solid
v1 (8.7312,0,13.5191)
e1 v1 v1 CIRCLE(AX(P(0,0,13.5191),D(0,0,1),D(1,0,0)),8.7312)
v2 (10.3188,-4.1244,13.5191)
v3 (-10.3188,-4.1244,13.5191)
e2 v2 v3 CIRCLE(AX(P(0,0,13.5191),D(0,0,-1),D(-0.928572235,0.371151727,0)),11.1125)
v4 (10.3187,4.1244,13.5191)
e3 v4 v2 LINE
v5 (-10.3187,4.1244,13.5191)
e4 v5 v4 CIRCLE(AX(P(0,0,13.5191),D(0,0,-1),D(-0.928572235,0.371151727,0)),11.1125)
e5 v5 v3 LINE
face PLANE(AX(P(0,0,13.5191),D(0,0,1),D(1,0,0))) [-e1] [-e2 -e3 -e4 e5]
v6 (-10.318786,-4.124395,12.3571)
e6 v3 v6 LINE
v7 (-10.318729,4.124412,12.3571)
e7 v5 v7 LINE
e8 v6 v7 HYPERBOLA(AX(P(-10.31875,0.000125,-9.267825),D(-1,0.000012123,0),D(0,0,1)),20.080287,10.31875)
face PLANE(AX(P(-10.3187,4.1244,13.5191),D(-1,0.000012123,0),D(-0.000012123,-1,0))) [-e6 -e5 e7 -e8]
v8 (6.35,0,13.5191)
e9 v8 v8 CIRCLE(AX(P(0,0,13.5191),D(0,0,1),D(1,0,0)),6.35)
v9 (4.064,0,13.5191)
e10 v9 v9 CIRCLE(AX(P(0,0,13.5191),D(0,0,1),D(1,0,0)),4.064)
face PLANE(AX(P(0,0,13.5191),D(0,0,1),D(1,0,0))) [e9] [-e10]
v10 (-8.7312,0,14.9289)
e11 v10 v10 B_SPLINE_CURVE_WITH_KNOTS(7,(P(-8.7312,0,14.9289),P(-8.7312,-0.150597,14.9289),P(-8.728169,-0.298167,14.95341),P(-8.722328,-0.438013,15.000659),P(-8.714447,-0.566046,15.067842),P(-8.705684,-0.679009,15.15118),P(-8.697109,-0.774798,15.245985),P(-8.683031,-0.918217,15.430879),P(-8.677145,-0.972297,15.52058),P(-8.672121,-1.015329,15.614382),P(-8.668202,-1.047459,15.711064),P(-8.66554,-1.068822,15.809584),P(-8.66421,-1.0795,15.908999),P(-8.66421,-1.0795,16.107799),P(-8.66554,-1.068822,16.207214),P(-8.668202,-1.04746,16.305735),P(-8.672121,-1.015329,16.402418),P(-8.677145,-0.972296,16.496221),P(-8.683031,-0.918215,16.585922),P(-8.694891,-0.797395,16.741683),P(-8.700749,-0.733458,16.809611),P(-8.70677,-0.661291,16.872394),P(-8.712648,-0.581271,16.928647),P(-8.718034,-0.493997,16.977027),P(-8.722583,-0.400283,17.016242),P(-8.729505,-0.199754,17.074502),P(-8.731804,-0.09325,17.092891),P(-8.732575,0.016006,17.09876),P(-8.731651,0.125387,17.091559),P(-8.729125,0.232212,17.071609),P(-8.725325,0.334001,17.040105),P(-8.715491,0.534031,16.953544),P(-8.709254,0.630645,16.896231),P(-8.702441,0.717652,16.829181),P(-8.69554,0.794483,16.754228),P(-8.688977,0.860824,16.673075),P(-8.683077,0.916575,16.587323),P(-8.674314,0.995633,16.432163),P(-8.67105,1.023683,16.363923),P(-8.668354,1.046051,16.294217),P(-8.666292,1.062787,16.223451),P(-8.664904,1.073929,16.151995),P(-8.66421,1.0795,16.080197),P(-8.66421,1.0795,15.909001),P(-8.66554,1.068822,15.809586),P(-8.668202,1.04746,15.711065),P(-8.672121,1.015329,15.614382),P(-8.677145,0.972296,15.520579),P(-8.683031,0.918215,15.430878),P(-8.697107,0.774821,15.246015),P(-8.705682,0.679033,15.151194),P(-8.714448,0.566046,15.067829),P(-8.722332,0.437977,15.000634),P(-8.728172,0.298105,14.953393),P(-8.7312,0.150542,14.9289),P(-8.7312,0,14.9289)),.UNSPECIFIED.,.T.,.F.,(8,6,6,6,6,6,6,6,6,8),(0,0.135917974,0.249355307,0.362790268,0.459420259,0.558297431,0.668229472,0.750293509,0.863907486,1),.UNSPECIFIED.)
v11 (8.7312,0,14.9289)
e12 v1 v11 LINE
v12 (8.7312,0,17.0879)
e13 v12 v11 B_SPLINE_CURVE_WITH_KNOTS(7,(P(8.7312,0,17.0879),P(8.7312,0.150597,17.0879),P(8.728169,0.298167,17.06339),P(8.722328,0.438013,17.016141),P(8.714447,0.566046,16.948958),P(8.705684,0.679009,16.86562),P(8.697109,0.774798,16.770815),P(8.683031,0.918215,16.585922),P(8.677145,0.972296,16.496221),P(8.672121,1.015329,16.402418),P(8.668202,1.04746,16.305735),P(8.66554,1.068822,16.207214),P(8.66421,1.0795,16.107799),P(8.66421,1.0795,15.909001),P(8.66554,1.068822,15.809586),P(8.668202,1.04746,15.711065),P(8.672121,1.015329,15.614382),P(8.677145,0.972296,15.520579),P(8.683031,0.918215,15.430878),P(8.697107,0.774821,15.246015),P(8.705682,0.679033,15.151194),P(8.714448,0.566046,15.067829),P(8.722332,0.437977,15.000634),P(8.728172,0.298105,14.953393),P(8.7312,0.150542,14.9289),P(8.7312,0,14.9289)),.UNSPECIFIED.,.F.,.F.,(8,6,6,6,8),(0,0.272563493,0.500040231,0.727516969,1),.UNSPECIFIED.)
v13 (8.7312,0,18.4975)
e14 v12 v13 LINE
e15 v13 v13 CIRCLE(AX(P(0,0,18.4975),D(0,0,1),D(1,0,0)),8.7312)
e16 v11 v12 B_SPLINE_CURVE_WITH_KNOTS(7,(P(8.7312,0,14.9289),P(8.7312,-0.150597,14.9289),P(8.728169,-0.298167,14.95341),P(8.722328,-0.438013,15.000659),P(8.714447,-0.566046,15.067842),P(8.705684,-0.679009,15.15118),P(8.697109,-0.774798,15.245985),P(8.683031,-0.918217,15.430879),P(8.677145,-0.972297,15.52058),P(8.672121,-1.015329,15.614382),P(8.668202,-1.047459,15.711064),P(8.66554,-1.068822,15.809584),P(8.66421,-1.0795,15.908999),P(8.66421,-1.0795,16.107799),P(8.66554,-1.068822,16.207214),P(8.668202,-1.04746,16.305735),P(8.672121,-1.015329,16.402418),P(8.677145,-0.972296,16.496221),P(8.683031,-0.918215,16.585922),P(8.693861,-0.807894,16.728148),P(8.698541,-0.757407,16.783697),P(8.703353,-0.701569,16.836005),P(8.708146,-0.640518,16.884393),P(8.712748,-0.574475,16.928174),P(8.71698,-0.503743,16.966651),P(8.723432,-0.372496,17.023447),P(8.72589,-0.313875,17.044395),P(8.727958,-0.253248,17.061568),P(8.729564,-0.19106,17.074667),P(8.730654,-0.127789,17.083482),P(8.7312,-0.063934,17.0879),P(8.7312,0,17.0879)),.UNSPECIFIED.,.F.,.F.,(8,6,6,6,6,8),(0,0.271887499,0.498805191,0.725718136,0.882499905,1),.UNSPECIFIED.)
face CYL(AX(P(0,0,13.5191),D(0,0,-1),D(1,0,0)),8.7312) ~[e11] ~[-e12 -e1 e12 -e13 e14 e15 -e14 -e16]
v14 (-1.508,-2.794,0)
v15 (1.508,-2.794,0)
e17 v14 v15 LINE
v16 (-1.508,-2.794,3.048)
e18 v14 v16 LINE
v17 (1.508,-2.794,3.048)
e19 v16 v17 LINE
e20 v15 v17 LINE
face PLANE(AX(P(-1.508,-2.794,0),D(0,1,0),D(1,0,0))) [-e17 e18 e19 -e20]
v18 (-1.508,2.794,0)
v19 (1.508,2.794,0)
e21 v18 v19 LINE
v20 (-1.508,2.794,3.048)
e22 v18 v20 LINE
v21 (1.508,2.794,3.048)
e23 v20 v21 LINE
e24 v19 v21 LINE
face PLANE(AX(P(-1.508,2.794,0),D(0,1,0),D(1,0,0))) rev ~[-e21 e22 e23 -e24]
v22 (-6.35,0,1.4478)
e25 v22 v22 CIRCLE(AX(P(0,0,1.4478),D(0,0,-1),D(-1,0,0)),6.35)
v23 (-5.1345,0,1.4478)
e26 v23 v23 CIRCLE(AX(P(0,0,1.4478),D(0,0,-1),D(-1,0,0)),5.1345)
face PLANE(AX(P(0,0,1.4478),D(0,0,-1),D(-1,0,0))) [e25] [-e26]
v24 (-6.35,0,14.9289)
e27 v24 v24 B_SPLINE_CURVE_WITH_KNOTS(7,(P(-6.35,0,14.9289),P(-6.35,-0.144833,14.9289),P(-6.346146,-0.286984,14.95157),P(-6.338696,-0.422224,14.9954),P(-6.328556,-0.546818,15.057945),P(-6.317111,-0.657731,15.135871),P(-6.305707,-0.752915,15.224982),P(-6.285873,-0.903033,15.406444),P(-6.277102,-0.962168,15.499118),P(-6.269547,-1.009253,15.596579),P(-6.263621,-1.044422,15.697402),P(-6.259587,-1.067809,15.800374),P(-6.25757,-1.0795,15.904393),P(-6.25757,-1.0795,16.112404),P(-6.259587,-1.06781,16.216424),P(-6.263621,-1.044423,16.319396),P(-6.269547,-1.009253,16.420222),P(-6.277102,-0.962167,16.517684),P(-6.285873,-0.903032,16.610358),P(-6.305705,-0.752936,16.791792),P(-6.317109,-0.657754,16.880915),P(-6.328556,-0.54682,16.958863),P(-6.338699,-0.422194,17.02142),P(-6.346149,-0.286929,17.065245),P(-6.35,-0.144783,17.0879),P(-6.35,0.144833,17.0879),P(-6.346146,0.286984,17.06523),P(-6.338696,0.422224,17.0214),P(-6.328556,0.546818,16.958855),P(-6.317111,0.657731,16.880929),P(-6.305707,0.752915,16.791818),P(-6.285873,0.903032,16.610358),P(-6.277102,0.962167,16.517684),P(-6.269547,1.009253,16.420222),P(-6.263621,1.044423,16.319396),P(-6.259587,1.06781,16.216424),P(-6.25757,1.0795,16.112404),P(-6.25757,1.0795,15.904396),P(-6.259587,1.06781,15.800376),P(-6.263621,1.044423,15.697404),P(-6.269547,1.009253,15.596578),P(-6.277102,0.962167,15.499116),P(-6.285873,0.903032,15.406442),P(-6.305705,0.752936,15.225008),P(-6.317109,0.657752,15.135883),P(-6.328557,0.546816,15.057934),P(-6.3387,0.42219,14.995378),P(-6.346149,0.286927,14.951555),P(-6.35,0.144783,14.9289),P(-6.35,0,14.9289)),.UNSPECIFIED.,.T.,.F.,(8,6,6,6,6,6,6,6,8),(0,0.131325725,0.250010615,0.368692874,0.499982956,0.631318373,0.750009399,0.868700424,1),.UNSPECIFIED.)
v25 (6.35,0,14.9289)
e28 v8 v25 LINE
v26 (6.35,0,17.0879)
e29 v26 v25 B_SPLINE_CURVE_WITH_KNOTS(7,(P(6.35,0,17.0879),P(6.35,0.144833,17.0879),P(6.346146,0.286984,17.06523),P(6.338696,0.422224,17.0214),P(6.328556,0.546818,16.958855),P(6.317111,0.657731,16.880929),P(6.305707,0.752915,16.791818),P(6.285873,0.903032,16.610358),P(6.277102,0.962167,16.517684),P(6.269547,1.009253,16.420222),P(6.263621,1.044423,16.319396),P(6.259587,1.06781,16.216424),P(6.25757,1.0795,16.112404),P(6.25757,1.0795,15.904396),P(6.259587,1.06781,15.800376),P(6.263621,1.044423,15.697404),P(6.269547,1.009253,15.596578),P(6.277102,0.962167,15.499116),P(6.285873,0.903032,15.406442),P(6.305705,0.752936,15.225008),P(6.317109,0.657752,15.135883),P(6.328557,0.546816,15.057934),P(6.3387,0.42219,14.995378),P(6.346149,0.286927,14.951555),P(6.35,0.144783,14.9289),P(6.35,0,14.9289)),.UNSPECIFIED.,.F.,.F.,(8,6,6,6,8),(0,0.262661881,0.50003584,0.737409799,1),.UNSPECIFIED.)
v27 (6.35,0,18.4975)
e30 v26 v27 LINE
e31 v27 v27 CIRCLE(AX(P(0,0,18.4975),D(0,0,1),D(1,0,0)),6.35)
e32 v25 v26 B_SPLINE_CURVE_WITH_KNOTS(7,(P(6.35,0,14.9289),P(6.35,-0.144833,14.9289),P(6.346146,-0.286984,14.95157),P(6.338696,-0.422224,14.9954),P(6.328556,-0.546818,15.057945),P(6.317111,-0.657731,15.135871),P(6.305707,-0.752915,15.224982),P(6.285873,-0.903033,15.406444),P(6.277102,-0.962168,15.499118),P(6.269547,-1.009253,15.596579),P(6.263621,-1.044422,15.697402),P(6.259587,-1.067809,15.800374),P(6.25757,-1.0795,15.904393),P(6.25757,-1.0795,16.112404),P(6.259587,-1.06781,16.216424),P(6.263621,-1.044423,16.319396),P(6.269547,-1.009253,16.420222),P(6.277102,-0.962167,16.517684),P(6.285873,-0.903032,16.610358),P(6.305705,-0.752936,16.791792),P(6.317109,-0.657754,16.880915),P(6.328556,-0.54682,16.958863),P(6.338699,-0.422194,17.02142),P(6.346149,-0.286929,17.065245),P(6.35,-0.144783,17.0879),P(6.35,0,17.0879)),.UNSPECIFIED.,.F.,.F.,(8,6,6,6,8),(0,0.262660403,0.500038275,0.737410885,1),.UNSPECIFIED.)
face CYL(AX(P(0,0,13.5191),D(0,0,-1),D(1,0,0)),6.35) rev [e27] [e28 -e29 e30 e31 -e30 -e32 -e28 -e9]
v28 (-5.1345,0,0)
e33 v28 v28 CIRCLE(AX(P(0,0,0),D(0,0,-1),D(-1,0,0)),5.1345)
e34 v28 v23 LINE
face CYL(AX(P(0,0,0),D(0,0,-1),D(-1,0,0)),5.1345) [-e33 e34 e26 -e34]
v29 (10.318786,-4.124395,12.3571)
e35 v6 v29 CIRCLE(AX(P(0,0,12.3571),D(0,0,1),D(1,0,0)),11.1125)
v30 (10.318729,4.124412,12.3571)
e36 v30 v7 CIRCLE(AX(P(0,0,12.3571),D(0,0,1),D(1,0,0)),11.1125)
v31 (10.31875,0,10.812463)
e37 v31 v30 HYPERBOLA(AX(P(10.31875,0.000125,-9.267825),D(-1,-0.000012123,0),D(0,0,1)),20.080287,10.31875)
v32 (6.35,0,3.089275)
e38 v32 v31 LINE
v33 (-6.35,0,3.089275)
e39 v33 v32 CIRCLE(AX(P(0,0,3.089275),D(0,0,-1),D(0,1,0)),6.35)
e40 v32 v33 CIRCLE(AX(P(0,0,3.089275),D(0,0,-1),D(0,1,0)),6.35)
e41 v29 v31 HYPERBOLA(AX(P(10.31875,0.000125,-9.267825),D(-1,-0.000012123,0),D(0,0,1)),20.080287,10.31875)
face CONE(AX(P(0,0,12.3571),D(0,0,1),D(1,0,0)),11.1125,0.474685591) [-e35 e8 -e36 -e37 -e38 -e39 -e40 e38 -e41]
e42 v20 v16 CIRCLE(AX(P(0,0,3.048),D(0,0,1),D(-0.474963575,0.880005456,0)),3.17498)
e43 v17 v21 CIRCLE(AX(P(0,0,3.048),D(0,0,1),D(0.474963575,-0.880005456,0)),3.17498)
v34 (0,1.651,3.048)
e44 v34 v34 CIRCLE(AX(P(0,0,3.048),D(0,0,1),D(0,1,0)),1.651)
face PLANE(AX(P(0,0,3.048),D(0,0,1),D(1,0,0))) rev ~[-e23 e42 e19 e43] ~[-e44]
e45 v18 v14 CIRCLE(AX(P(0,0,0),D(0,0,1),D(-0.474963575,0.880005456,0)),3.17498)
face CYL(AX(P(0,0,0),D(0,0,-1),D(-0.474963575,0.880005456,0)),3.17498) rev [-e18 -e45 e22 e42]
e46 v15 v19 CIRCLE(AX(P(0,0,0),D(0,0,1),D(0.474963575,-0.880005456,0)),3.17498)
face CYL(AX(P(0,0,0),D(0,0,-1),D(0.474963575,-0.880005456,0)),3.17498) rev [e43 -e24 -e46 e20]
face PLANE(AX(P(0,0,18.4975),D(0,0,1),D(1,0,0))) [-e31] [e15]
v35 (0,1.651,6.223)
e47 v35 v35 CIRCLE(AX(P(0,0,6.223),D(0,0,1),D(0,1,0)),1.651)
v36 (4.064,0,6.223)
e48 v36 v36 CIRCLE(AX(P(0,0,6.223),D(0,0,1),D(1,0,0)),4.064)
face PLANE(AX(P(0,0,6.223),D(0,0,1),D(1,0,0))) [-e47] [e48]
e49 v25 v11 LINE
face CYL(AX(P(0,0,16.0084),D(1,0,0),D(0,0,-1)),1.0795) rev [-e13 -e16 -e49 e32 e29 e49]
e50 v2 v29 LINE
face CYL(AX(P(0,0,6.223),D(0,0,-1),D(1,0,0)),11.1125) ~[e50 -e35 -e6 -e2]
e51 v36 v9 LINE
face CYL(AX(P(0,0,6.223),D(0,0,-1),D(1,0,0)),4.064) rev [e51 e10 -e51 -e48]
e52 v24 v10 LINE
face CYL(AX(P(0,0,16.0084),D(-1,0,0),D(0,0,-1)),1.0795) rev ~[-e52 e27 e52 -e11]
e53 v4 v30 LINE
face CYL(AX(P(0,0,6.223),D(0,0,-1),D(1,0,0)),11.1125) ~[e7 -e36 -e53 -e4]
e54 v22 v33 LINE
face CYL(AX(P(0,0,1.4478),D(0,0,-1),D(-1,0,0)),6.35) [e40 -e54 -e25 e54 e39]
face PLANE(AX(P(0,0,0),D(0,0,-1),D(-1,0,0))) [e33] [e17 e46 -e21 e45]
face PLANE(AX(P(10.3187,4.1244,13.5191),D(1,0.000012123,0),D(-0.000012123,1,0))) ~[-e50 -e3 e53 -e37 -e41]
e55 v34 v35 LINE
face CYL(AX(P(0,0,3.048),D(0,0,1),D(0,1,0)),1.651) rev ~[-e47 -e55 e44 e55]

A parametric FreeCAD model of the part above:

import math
import FreeCAD as App
import Part
import Sketcher
Q = App.Units.Quantity


def edges_at(feature, points):
    """Names of the edges that pass closest to the given points."""
    edges = feature.Shape.Edges
    near = lambda p: min(range(len(edges)), key=lambda i: edges[i].distToShape(Part.Vertex(*p))[0])
    return sorted({f"Edge{near(p) + 1}" for p in points})

doc = App.newDocument("Part")
params = doc.addObject("Spreadsheet::Sheet", "Params")
for row, (alias, value) in enumerate([
    ("sketch1_diameter", "0.875 in"),
    ("sketch1_radius", "0.125 in"),
    ("pad1_length", "0.12 in"),
    ("sketch2_diameter", "0.875 in"),
    ("pad2_length", "0.125 in"),
    ("sketch3_diameter", "0.13 in"),
    ("hole_diameter", "0.13 in"),
    ("hole_depth", "1 in"),
    ("sketch4_diameter", "0.32 in"),
    ("sketch4_diameter2", "0.875 in"),
    ("pad3_length", "7.2961 mm"),
    ("chamfer_size", "0.25 in"),
    ("chamfer_size2", "0.4865 in"),
    ("sketch5_diameter", "0.5 in"),
    ("sketch5_diameter2", "0.6875 in"),
    ("pad4_length", "0.196 in"),
    ("sketch6_diameter", "0.085 in"),
    ("hole2_diameter", "0.085 in"),
    ("sketch7_radius", "0.4375 in"),
    ("sketch8_diameter", "0.5 in"),
    ("sketch8_diameter2", "0.395 in"),
    ("pad5_length", "0.1 in"),
    ("pocket2_length", "0.057 in"),
    ("sketch10_diameter", "0.375 in"),
    ("pad6_length", "0.057 in"),
], start=1):
    params.set(f"A{row}", alias)
    params.set(f"B{row}", "=" + value)
    params.setAlias(f"B{row}", alias)

body = doc.addObject("PartDesign::Body", "Body")

# Sketch on XY plane
sketch1 = doc.addObject("Sketcher::SketchObject", "Sketch")
body.addObject(sketch1)
sketch1.AttachmentSupport = (doc.XY_Plane, [""])
sketch1.MapMode = "FlatFace"
sketch1.addGeometry(Part.Circle(App.Vector(0, 0, 0), App.Vector(0, 0, 1), 11.1), False)
sketch1.addGeometry(Part.ArcOfCircle(Part.Circle(App.Vector(0, 0, 0), App.Vector(0, 0, 1), 3.2), math.radians(118), math.radians(242)), False)
sketch1.addGeometry(Part.LineSegment(App.Vector(-1.5, 2.8, 0), App.Vector(1.5, 2.8, 0)), False)
sketch1.addGeometry(Part.ArcOfCircle(Part.Circle(App.Vector(0, 0, 0), App.Vector(0, 0, 1), 3.2), math.radians(-62), math.radians(62)), False)
sketch1.addGeometry(Part.LineSegment(App.Vector(1.5, -2.8, 0), App.Vector(-1.5, -2.8, 0)), False)
sketch1.addConstraint(Sketcher.Constraint("Coincident", 1, 1, 2, 1))
sketch1.addConstraint(Sketcher.Constraint("Coincident", 2, 2, 3, 2))
sketch1.addConstraint(Sketcher.Constraint("Coincident", 3, 1, 4, 1))
sketch1.addConstraint(Sketcher.Constraint("Coincident", 4, 2, 1, 2))
sketch1.addConstraint(Sketcher.Constraint("Horizontal", 2))
sketch1.addConstraint(Sketcher.Constraint("Horizontal", 4))
sketch1.addConstraint(Sketcher.Constraint("Coincident", 0, 3, -1, 1))
sketch1.addConstraint(Sketcher.Constraint("Coincident", 1, 3, -1, 1))
sketch1.addConstraint(Sketcher.Constraint("Coincident", 3, 3, -1, 1))
sketch1.addConstraint(Sketcher.Constraint("Equal", 1, 3))
sketch1.addConstraint(Sketcher.Constraint("Vertical", 2, 2, 3, 1))
sketch1.addConstraint(Sketcher.Constraint("Diameter", 0, Q("0.875 in")))
sketch1.addConstraint(Sketcher.Constraint("Radius", 1, Q("0.125 in")))
sketch1.addConstraint(Sketcher.Constraint("DistanceY", -1, 1, 1, 1, Q("0.11 in")))
sketch1.setExpression("Constraints[11]", "Params.sketch1_diameter")
sketch1.setExpression("Constraints[12]", "Params.sketch1_radius")
pad1 = doc.addObject("PartDesign::Pad", "Pad")
body.addObject(pad1)
pad1.Profile = sketch1
pad1.setExpression("Length", "Params.pad1_length")

# Sketch on XY plane
sketch2 = doc.addObject("Sketcher::SketchObject", "Sketch001")
body.addObject(sketch2)
sketch2.AttachmentSupport = (doc.XY_Plane, [""])
sketch2.MapMode = "FlatFace"
sketch2.AttachmentOffset = App.Placement(App.Vector(0, 0, 0.12 * 25.4), App.Rotation())
sketch2.addGeometry(Part.Circle(App.Vector(0, 0, 0), App.Vector(0, 0, 1), 11), False)
sketch2.addConstraint(Sketcher.Constraint("Coincident", 0, 3, -1, 1))
sketch2.addConstraint(Sketcher.Constraint("Diameter", 0, Q("0.875 in")))
sketch2.setExpression("Constraints[1]", "Params.sketch2_diameter")
pad2 = doc.addObject("PartDesign::Pad", "Pad001")
body.addObject(pad2)
pad2.Profile = sketch2
pad2.setExpression("Length", "Params.pad2_length")

# Sketch on XY plane
sketch3 = doc.addObject("Sketcher::SketchObject", "Sketch002")
body.addObject(sketch3)
sketch3.AttachmentSupport = (doc.XY_Plane, [""])
sketch3.MapMode = "FlatFace"
sketch3.AttachmentOffset = App.Placement(App.Vector(0, 0, 0.12 * 25.4), App.Rotation())
sketch3.addGeometry(Part.Circle(App.Vector(0, 0, 0), App.Vector(0, 0, 1), 1.7), False)
sketch3.addConstraint(Sketcher.Constraint("Coincident", 0, 3, -1, 1))
sketch3.addConstraint(Sketcher.Constraint("Diameter", 0, Q("0.13 in")))
sketch3.setExpression("Constraints[1]", "Params.sketch3_diameter")
doc.recompute()
hole = doc.addObject("PartDesign::Hole", "Hole")
body.addObject(hole)
hole.Profile = sketch3
hole.ThreadType = "None"
hole.setExpression("Diameter", "Params.hole_diameter")
hole.DepthType = "Dimension"
hole.setExpression("Depth", "Params.hole_depth")
hole.DrillPoint = "Angled"
hole.DrillPointAngle = 118
hole.Reversed = True

# Sketch on XY plane
sketch4 = doc.addObject("Sketcher::SketchObject", "Sketch003")
body.addObject(sketch4)
sketch4.AttachmentSupport = (doc.XY_Plane, [""])
sketch4.MapMode = "FlatFace"
sketch4.AttachmentOffset = App.Placement(App.Vector(0, 0, 0.245 * 25.4), App.Rotation())
sketch4.addGeometry(Part.Circle(App.Vector(0, 0, 0), App.Vector(0, 0, 1), 11.1), False)
sketch4.addGeometry(Part.Circle(App.Vector(0, 0, 0), App.Vector(0, 0, 1), 4.1), False)
sketch4.addConstraint(Sketcher.Constraint("Coincident", 0, 3, -1, 1))
sketch4.addConstraint(Sketcher.Constraint("Coincident", 1, 3, -1, 1))
sketch4.addConstraint(Sketcher.Constraint("Diameter", 1, Q("0.32 in")))
sketch4.addConstraint(Sketcher.Constraint("Diameter", 0, Q("0.875 in")))
sketch4.setExpression("Constraints[2]", "Params.sketch4_diameter")
sketch4.setExpression("Constraints[3]", "Params.sketch4_diameter2")
pad3 = doc.addObject("PartDesign::Pad", "Pad002")
body.addObject(pad3)
pad3.Profile = sketch4
pad3.setExpression("Length", "Params.pad3_length")
doc.recompute()

chamfer = doc.addObject("PartDesign::Chamfer", "Chamfer")
body.addObject(chamfer)
chamfer.Base = (pad3, edges_at(pad3, [(-11.113, 0, 0)]))
chamfer.ChamferType = "Two distances"
chamfer.setExpression("Size", "Params.chamfer_size")
chamfer.setExpression("Size2", "Params.chamfer_size2")

# Sketch on XY plane
sketch5 = doc.addObject("Sketcher::SketchObject", "Sketch004")
body.addObject(sketch5)
sketch5.AttachmentSupport = (doc.XY_Plane, [""])
sketch5.MapMode = "FlatFace"
sketch5.AttachmentOffset = App.Placement(App.Vector(0, 0, 13.5191), App.Rotation())
sketch5.addGeometry(Part.Circle(App.Vector(0, 0, 0), App.Vector(0, 0, 1), 9), False)
sketch5.addGeometry(Part.Circle(App.Vector(0, 0, 0), App.Vector(0, 0, 1), 6), False)
sketch5.addConstraint(Sketcher.Constraint("Coincident", 0, 3, -1, 1))
sketch5.addConstraint(Sketcher.Constraint("Coincident", 1, 3, -1, 1))
sketch5.addConstraint(Sketcher.Constraint("Diameter", 1, Q("0.5 in")))
sketch5.addConstraint(Sketcher.Constraint("Diameter", 0, Q("0.6875 in")))
sketch5.setExpression("Constraints[2]", "Params.sketch5_diameter")
sketch5.setExpression("Constraints[3]", "Params.sketch5_diameter2")
pad4 = doc.addObject("PartDesign::Pad", "Pad003")
body.addObject(pad4)
pad4.Profile = sketch5
pad4.setExpression("Length", "Params.pad4_length")

# Sketch on YZ plane
sketch6 = doc.addObject("Sketcher::SketchObject", "Sketch005")
body.addObject(sketch6)
sketch6.AttachmentSupport = (doc.YZ_Plane, [""])
sketch6.MapMode = "FlatFace"
sketch6.addGeometry(Part.Circle(App.Vector(0, 16, 0), App.Vector(0, 0, 1), 1.1), False)
sketch6.addConstraint(Sketcher.Constraint("PointOnObject", 0, 3, -2))
sketch6.addConstraint(Sketcher.Constraint("Diameter", 0, Q("0.085 in")))
sketch6.addConstraint(Sketcher.Constraint("DistanceY", -1, 1, 0, 3, 16.0084))
sketch6.setExpression("Constraints[1]", "Params.sketch6_diameter")
doc.recompute()
hole2 = doc.addObject("PartDesign::Hole", "Hole001")
body.addObject(hole2)
hole2.Profile = sketch6
hole2.ThreadType = "None"
hole2.setExpression("Diameter", "Params.hole2_diameter")
hole2.DepthType = "ThroughAll"

# Sketch on XY plane
sketch7 = doc.addObject("Sketcher::SketchObject", "Sketch006")
body.addObject(sketch7)
sketch7.AttachmentSupport = (doc.XY_Plane, [""])
sketch7.MapMode = "FlatFace"
sketch7.AttachmentOffset = App.Placement(App.Vector(0, 0, 13.5191), App.Rotation())
sketch7.addGeometry(Part.ArcOfCircle(Part.Circle(App.Vector(0, 0, 0), App.Vector(0, 0, 1), 11), math.radians(158), math.radians(202)), False)
sketch7.addGeometry(Part.LineSegment(App.Vector(-10, 4, 0), App.Vector(-10, -4, 0)), False)
sketch7.addConstraint(Sketcher.Constraint("Coincident", 0, 1, 1, 1))
sketch7.addConstraint(Sketcher.Constraint("Coincident", 1, 2, 0, 2))
sketch7.addConstraint(Sketcher.Constraint("Vertical", 1))
sketch7.addConstraint(Sketcher.Constraint("Coincident", 0, 3, -1, 1))
sketch7.addConstraint(Sketcher.Constraint("Radius", 0, Q("0.4375 in")))
sketch7.addConstraint(Sketcher.Constraint("DistanceX", 0, 1, -1, 1, Q("0.406252 in")))
sketch7.setExpression("Constraints[4]", "Params.sketch7_radius")
pocket1 = doc.addObject("PartDesign::Pocket", "Pocket")
body.addObject(pocket1)
pocket1.Profile = sketch7
pocket1.Type = "ThroughAll"
doc.recompute()

mirrored = doc.addObject("PartDesign::Mirrored", "Mirrored")
body.addObject(mirrored)
mirrored.Originals = [hole2, pocket1]
mirrored.MirrorPlane = (doc.YZ_Plane, [""])
body.Tip = mirrored

# Sketch on XY plane
sketch8 = doc.addObject("Sketcher::SketchObject", "Sketch007")
body.addObject(sketch8)
sketch8.AttachmentSupport = (doc.XY_Plane, [""])
sketch8.MapMode = "FlatFace"
sketch8.AttachmentOffset = App.Placement(App.Vector(0, 0, 0.057 * 25.4), App.Rotation())
sketch8.addGeometry(Part.Circle(App.Vector(0, 0, 0), App.Vector(0, 0, 1), 6), False)
sketch8.addGeometry(Part.Circle(App.Vector(0, 0, 0), App.Vector(0, 0, 1), 5), False)
sketch8.addConstraint(Sketcher.Constraint("Coincident", 0, 3, -1, 1))
sketch8.addConstraint(Sketcher.Constraint("Coincident", 1, 3, -1, 1))
sketch8.addConstraint(Sketcher.Constraint("Diameter", 0, Q("0.5 in")))
sketch8.addConstraint(Sketcher.Constraint("Diameter", 1, Q("0.395 in")))
sketch8.setExpression("Constraints[2]", "Params.sketch8_diameter")
sketch8.setExpression("Constraints[3]", "Params.sketch8_diameter2")
pad5 = doc.addObject("PartDesign::Pad", "Pad004")
body.addObject(pad5)
pad5.Profile = sketch8
pad5.setExpression("Length", "Params.pad5_length")

# Sketch on XY plane
sketch9 = doc.addObject("Sketcher::SketchObject", "Sketch008")
body.addObject(sketch9)
sketch9.AttachmentSupport = (doc.XY_Plane, [""])
sketch9.MapMode = "FlatFace"
sketch9.addGeometry(Part.Circle(App.Vector(0, 0, 0), App.Vector(0, 0, 1), 6), False)
sketch9.addGeometry(Part.Circle(App.Vector(0, 0, 0), App.Vector(0, 0, 1), 5), False)
sketch9.addConstraint(Sketcher.Constraint("Coincident", 0, 3, -1, 1))
sketch9.addConstraint(Sketcher.Constraint("Coincident", 1, 3, -1, 1))
sketch9.addConstraint(Sketcher.Constraint("Diameter", 1, Q("0.4043 in")))
sketch9.addConstraint(Sketcher.Constraint("Diameter", 0, 11.013))
pocket2 = doc.addObject("PartDesign::Pocket", "Pocket001")
body.addObject(pocket2)
pocket2.Profile = sketch9
pocket2.setExpression("Length", "Params.pocket2_length")
pocket2.Reversed = True

# Sketch on XY plane
sketch10 = doc.addObject("Sketcher::SketchObject", "Sketch009")
body.addObject(sketch10)
sketch10.AttachmentSupport = (doc.XY_Plane, [""])
sketch10.MapMode = "FlatFace"
sketch10.addGeometry(Part.Circle(App.Vector(0, 0, 0), App.Vector(0, 0, 1), 5.1), False)
sketch10.addGeometry(Part.Circle(App.Vector(0, 0, 0), App.Vector(0, 0, 1), 4.8), False)
sketch10.addConstraint(Sketcher.Constraint("Coincident", 0, 3, -1, 1))
sketch10.addConstraint(Sketcher.Constraint("Coincident", 1, 3, -1, 1))
sketch10.addConstraint(Sketcher.Constraint("Diameter", 1, Q("0.375 in")))
sketch10.addConstraint(Sketcher.Constraint("Diameter", 0, Q("0.4043 in")))
sketch10.setExpression("Constraints[2]", "Params.sketch10_diameter")
pad6 = doc.addObject("PartDesign::Pad", "Pad005")
body.addObject(pad6)
pad6.Profile = sketch10
pad6.setExpression("Length", "Params.pad6_length")

doc.recompute()
